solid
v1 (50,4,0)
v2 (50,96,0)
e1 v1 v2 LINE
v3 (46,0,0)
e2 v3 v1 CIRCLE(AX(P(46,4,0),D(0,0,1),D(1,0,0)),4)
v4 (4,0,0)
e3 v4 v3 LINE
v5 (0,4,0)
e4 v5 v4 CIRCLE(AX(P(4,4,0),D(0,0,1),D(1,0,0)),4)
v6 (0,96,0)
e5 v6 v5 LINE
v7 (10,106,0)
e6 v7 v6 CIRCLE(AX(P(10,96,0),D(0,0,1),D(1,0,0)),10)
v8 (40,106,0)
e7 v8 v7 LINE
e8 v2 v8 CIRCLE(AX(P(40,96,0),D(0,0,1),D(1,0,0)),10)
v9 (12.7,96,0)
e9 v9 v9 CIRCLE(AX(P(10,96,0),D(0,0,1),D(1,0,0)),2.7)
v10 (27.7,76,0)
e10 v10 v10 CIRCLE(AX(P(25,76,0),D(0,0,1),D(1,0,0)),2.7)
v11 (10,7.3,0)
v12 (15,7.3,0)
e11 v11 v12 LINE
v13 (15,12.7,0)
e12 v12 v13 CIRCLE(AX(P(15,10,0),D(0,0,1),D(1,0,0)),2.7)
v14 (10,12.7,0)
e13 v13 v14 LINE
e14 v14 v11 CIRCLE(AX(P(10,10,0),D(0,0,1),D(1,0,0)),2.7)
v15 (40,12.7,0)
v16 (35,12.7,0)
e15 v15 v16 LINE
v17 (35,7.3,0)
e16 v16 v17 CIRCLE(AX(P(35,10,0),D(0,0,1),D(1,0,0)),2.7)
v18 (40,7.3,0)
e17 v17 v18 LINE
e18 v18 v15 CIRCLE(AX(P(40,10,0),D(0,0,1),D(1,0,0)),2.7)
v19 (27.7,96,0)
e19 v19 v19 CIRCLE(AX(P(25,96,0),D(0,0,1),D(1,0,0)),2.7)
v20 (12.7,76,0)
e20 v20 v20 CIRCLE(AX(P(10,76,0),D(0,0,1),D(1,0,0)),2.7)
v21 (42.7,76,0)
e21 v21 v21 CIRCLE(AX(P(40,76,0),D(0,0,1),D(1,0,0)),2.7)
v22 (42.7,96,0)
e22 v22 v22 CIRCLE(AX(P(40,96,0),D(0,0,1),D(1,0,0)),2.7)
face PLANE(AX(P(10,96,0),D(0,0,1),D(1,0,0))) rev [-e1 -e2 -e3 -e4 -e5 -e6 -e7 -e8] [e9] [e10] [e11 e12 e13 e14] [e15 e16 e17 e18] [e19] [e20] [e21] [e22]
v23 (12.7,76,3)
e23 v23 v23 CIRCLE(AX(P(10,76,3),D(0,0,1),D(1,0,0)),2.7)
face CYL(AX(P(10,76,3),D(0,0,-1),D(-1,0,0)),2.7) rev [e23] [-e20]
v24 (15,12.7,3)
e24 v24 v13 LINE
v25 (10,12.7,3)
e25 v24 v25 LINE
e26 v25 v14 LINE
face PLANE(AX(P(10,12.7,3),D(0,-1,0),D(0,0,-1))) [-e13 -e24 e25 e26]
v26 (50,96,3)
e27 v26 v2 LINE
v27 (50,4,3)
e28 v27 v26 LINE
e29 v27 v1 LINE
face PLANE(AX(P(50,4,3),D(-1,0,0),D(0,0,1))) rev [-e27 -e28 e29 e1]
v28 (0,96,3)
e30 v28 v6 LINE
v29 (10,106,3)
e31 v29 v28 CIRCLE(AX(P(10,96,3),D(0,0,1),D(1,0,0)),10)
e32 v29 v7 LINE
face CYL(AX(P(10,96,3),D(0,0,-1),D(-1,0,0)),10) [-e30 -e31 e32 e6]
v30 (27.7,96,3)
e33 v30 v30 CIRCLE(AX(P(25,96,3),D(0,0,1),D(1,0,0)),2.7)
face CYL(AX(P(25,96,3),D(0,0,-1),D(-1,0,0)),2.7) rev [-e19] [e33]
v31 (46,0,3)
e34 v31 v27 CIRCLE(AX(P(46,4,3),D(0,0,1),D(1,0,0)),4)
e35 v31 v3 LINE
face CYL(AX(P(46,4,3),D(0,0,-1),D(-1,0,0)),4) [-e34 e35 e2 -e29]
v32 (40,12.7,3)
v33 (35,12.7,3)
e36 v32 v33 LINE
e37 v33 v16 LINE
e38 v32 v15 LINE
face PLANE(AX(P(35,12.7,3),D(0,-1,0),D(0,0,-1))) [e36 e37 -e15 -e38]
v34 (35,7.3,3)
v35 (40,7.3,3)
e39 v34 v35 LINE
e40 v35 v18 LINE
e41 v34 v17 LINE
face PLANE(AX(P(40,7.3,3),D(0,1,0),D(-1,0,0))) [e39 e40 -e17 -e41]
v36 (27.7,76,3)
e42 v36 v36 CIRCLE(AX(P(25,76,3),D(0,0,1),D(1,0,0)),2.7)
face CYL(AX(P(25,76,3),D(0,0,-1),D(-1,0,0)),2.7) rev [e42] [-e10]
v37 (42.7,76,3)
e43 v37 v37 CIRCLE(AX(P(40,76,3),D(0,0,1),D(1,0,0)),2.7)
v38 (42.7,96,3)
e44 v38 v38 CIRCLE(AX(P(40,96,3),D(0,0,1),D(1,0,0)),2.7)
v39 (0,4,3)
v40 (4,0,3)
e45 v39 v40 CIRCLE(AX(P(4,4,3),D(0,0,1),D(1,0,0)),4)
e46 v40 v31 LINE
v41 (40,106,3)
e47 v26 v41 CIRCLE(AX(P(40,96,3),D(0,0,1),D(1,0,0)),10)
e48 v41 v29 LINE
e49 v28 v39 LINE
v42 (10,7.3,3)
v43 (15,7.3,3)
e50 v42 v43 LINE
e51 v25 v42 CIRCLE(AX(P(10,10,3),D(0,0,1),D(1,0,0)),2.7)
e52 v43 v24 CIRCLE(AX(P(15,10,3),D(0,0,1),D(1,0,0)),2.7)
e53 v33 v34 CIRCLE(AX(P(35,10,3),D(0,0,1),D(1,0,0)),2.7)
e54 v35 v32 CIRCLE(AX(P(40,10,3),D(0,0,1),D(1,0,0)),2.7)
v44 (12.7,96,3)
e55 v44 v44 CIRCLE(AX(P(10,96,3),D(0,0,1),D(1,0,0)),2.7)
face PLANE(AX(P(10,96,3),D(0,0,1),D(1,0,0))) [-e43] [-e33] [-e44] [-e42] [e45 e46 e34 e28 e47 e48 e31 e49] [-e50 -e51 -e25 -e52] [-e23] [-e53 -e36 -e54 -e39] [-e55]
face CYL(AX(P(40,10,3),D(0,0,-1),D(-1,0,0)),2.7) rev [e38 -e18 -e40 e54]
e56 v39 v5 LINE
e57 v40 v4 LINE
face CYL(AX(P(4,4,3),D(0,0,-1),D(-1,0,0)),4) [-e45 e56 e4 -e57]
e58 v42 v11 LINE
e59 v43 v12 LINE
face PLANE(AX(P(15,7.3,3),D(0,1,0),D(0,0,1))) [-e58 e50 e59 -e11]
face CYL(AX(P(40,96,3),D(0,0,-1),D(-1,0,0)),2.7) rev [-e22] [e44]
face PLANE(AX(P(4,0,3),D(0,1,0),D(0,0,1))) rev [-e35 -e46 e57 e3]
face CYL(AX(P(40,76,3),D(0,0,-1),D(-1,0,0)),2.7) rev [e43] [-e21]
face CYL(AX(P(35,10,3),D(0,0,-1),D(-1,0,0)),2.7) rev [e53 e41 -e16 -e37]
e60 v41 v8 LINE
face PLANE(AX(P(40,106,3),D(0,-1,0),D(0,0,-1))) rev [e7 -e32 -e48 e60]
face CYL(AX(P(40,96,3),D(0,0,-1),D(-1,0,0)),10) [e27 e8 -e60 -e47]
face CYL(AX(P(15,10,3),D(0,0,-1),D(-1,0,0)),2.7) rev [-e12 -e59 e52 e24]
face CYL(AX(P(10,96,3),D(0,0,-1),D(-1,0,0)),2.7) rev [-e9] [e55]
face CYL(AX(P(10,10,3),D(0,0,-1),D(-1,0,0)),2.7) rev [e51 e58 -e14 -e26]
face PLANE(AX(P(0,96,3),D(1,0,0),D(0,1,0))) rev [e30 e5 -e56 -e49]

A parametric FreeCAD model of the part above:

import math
import FreeCAD as App
import Part
import Sketcher
from FreeCAD import Vector

doc = App.newDocument("Part")
body = doc.addObject("PartDesign::Body", "Body")

# Sketch on XY plane
sketch1 = body.newObject("Sketcher::SketchObject", "Sketch")
sketch1.AttachmentSupport = (doc.getObject("XY_Plane"), [""])
sketch1.MapMode = "FlatFace"
sketch1.addGeometry(Part.LineSegment(Vector(40, 106, 0), Vector(10, 106, 0)), False)
sketch1.addGeometry(Part.ArcOfCircle(Part.Circle(Vector(10, 96, 0), Vector(0, 0, 1), 10), math.radians(90), math.radians(180)), False)
sketch1.addGeometry(Part.LineSegment(Vector(0, 96, 0), Vector(0, 4, 0)), False)
sketch1.addGeometry(Part.ArcOfCircle(Part.Circle(Vector(4, 4, 0), Vector(0, 0, 1), 4), math.radians(180), math.radians(270)), False)
sketch1.addGeometry(Part.LineSegment(Vector(4, 0, 0), Vector(46, 0, 0)), False)
sketch1.addGeometry(Part.ArcOfCircle(Part.Circle(Vector(46, 4, 0), Vector(0, 0, 1), 4), math.radians(-90), math.radians(0)), False)
sketch1.addGeometry(Part.LineSegment(Vector(50, 4, 0), Vector(50, 96, 0)), False)
sketch1.addGeometry(Part.ArcOfCircle(Part.Circle(Vector(40, 96, 0), Vector(0, 0, 1), 10), math.radians(0), math.radians(90)), False)
sketch1.addGeometry(Part.ArcOfCircle(Part.Circle(Vector(15, 10, 0), Vector(0, 0, 1), 2.7), math.radians(-90), math.radians(90)), False)
sketch1.addGeometry(Part.LineSegment(Vector(15, 7.3, 0), Vector(10, 7.3, 0)), False)
sketch1.addGeometry(Part.ArcOfCircle(Part.Circle(Vector(10, 10, 0), Vector(0, 0, 1), 2.7), math.radians(90), math.radians(270)), False)
sketch1.addGeometry(Part.LineSegment(Vector(10, 12.7, 0), Vector(15, 12.7, 0)), False)
sketch1.addGeometry(Part.ArcOfCircle(Part.Circle(Vector(40, 10, 0), Vector(0, 0, 1), 2.7), math.radians(-90), math.radians(90)), False)
sketch1.addGeometry(Part.LineSegment(Vector(40, 7.3, 0), Vector(35, 7.3, 0)), False)
sketch1.addGeometry(Part.ArcOfCircle(Part.Circle(Vector(35, 10, 0), Vector(0, 0, 1), 2.7), math.radians(90), math.radians(270)), False)
sketch1.addGeometry(Part.LineSegment(Vector(35, 12.7, 0), Vector(40, 12.7, 0)), False)
sketch1.addGeometry(Part.Circle(Vector(10, 76, 0), Vector(0, 0, 1), 2.7), False)
sketch1.addGeometry(Part.Circle(Vector(10, 96, 0), Vector(0, 0, 1), 2.7), False)
sketch1.addGeometry(Part.Circle(Vector(25, 76, 0), Vector(0, 0, 1), 2.7), False)
sketch1.addGeometry(Part.Circle(Vector(25, 96, 0), Vector(0, 0, 1), 2.7), False)
sketch1.addGeometry(Part.Circle(Vector(40, 76, 0), Vector(0, 0, 1), 2.7), False)
sketch1.addGeometry(Part.Circle(Vector(40, 96, 0), Vector(0, 0, 1), 2.7), False)
sketch1.addConstraint(Sketcher.Constraint("Tangent", 0, 2, 1, 1))
sketch1.addConstraint(Sketcher.Constraint("Tangent", 1, 2, 2, 1))
sketch1.addConstraint(Sketcher.Constraint("Tangent", 2, 2, 3, 1))
sketch1.addConstraint(Sketcher.Constraint("Tangent", 3, 2, 4, 1))
sketch1.addConstraint(Sketcher.Constraint("Tangent", 4, 2, 5, 1))
sketch1.addConstraint(Sketcher.Constraint("Tangent", 5, 2, 6, 1))
sketch1.addConstraint(Sketcher.Constraint("Tangent", 6, 2, 7, 1))
sketch1.addConstraint(Sketcher.Constraint("Tangent", 7, 2, 0, 1))
sketch1.addConstraint(Sketcher.Constraint("Tangent", 8, 1, 9, 1))
sketch1.addConstraint(Sketcher.Constraint("Tangent", 9, 2, 10, 2))
sketch1.addConstraint(Sketcher.Constraint("Tangent", 10, 1, 11, 1))
sketch1.addConstraint(Sketcher.Constraint("Tangent", 11, 2, 8, 2))
sketch1.addConstraint(Sketcher.Constraint("Tangent", 12, 1, 13, 1))
sketch1.addConstraint(Sketcher.Constraint("Tangent", 13, 2, 14, 2))
sketch1.addConstraint(Sketcher.Constraint("Tangent", 14, 1, 15, 1))
sketch1.addConstraint(Sketcher.Constraint("Tangent", 15, 2, 12, 2))
sketch1.addConstraint(Sketcher.Constraint("Horizontal", 0))
sketch1.addConstraint(Sketcher.Constraint("Vertical", 2))
sketch1.addConstraint(Sketcher.Constraint("Horizontal", 4))
sketch1.addConstraint(Sketcher.Constraint("Vertical", 6))
sketch1.addConstraint(Sketcher.Constraint("Horizontal", 9))
sketch1.addConstraint(Sketcher.Constraint("Horizontal", 11))
sketch1.addConstraint(Sketcher.Constraint("Horizontal", 13))
sketch1.addConstraint(Sketcher.Constraint("Horizontal", 15))
sketch1.addConstraint(Sketcher.Constraint("Coincident", 17, 3, 1, 3))
sketch1.addConstraint(Sketcher.Constraint("Coincident", 21, 3, 7, 3))
sketch1.addConstraint(Sketcher.Constraint("Equal", 3, 5))
sketch1.addConstraint(Sketcher.Constraint("Equal", 1, 7))
sketch1.addConstraint(Sketcher.Constraint("Equal", 10, 12))
sketch1.addConstraint(Sketcher.Constraint("Equal", 14, 16))
sketch1.addConstraint(Sketcher.Constraint("Equal", 16, 17))
sketch1.addConstraint(Sketcher.Constraint("Equal", 17, 18))
sketch1.addConstraint(Sketcher.Constraint("Equal", 18, 19))
sketch1.addConstraint(Sketcher.Constraint("Equal", 19, 20))
sketch1.addConstraint(Sketcher.Constraint("Equal", 20, 21))
sketch1.addConstraint(Sketcher.Constraint("PointOnObject", 1, 2, -2))
sketch1.addConstraint(Sketcher.Constraint("PointOnObject", 3, 2, -1))
sketch1.addConstraint(Sketcher.Constraint("Horizontal", 10, 3, 12, 3))
sketch1.addConstraint(Sketcher.Constraint("Horizontal", 16, 3, 18, 3))
sketch1.addConstraint(Sketcher.Constraint("Horizontal", 17, 3, 19, 3))
sketch1.addConstraint(Sketcher.Constraint("Horizontal", 18, 3, 20, 3))
sketch1.addConstraint(Sketcher.Constraint("Vertical", 1, 3, 10, 3))
sketch1.addConstraint(Sketcher.Constraint("Vertical", 7, 3, 12, 3))
sketch1.addConstraint(Sketcher.Constraint("Vertical", 10, 3, 16, 3))
sketch1.addConstraint(Sketcher.Constraint("Vertical", 18, 3, 19, 3))
sketch1.addConstraint(Sketcher.Constraint("Vertical", 12, 3, 20, 3))
sketch1.addConstraint(Sketcher.Constraint("Equal", 11, 13))
sketch1.addConstraint(Sketcher.Constraint("Radius", 1, 10.0))
sketch1.addConstraint(Sketcher.Constraint("Radius", 3, 4.0))
sketch1.addConstraint(Sketcher.Constraint("Diameter", 16, 5.4))
sketch1.addConstraint(Sketcher.Constraint("DistanceX", 0, 2, 0, 1, 30.0))
sketch1.addConstraint(Sketcher.Constraint("DistanceX", 9, 2, 9, 1, 5.0))
sketch1.addConstraint(Sketcher.Constraint("DistanceY", 2, 2, 2, 1, 92.0))
sketch1.addConstraint(Sketcher.Constraint("DistanceY", -1, 1, 8, 3, 10.0))
sketch1.addConstraint(Sketcher.Constraint("DistanceY", -1, 1, 16, 3, 76.0))
sketch1.addConstraint(Sketcher.Constraint("DistanceX", -1, 1, 18, 3, 25.0))
pad1 = body.newObject("PartDesign::Pad", "Pad")
pad1.Profile = sketch1
pad1.Length = 3

doc.recompute()
